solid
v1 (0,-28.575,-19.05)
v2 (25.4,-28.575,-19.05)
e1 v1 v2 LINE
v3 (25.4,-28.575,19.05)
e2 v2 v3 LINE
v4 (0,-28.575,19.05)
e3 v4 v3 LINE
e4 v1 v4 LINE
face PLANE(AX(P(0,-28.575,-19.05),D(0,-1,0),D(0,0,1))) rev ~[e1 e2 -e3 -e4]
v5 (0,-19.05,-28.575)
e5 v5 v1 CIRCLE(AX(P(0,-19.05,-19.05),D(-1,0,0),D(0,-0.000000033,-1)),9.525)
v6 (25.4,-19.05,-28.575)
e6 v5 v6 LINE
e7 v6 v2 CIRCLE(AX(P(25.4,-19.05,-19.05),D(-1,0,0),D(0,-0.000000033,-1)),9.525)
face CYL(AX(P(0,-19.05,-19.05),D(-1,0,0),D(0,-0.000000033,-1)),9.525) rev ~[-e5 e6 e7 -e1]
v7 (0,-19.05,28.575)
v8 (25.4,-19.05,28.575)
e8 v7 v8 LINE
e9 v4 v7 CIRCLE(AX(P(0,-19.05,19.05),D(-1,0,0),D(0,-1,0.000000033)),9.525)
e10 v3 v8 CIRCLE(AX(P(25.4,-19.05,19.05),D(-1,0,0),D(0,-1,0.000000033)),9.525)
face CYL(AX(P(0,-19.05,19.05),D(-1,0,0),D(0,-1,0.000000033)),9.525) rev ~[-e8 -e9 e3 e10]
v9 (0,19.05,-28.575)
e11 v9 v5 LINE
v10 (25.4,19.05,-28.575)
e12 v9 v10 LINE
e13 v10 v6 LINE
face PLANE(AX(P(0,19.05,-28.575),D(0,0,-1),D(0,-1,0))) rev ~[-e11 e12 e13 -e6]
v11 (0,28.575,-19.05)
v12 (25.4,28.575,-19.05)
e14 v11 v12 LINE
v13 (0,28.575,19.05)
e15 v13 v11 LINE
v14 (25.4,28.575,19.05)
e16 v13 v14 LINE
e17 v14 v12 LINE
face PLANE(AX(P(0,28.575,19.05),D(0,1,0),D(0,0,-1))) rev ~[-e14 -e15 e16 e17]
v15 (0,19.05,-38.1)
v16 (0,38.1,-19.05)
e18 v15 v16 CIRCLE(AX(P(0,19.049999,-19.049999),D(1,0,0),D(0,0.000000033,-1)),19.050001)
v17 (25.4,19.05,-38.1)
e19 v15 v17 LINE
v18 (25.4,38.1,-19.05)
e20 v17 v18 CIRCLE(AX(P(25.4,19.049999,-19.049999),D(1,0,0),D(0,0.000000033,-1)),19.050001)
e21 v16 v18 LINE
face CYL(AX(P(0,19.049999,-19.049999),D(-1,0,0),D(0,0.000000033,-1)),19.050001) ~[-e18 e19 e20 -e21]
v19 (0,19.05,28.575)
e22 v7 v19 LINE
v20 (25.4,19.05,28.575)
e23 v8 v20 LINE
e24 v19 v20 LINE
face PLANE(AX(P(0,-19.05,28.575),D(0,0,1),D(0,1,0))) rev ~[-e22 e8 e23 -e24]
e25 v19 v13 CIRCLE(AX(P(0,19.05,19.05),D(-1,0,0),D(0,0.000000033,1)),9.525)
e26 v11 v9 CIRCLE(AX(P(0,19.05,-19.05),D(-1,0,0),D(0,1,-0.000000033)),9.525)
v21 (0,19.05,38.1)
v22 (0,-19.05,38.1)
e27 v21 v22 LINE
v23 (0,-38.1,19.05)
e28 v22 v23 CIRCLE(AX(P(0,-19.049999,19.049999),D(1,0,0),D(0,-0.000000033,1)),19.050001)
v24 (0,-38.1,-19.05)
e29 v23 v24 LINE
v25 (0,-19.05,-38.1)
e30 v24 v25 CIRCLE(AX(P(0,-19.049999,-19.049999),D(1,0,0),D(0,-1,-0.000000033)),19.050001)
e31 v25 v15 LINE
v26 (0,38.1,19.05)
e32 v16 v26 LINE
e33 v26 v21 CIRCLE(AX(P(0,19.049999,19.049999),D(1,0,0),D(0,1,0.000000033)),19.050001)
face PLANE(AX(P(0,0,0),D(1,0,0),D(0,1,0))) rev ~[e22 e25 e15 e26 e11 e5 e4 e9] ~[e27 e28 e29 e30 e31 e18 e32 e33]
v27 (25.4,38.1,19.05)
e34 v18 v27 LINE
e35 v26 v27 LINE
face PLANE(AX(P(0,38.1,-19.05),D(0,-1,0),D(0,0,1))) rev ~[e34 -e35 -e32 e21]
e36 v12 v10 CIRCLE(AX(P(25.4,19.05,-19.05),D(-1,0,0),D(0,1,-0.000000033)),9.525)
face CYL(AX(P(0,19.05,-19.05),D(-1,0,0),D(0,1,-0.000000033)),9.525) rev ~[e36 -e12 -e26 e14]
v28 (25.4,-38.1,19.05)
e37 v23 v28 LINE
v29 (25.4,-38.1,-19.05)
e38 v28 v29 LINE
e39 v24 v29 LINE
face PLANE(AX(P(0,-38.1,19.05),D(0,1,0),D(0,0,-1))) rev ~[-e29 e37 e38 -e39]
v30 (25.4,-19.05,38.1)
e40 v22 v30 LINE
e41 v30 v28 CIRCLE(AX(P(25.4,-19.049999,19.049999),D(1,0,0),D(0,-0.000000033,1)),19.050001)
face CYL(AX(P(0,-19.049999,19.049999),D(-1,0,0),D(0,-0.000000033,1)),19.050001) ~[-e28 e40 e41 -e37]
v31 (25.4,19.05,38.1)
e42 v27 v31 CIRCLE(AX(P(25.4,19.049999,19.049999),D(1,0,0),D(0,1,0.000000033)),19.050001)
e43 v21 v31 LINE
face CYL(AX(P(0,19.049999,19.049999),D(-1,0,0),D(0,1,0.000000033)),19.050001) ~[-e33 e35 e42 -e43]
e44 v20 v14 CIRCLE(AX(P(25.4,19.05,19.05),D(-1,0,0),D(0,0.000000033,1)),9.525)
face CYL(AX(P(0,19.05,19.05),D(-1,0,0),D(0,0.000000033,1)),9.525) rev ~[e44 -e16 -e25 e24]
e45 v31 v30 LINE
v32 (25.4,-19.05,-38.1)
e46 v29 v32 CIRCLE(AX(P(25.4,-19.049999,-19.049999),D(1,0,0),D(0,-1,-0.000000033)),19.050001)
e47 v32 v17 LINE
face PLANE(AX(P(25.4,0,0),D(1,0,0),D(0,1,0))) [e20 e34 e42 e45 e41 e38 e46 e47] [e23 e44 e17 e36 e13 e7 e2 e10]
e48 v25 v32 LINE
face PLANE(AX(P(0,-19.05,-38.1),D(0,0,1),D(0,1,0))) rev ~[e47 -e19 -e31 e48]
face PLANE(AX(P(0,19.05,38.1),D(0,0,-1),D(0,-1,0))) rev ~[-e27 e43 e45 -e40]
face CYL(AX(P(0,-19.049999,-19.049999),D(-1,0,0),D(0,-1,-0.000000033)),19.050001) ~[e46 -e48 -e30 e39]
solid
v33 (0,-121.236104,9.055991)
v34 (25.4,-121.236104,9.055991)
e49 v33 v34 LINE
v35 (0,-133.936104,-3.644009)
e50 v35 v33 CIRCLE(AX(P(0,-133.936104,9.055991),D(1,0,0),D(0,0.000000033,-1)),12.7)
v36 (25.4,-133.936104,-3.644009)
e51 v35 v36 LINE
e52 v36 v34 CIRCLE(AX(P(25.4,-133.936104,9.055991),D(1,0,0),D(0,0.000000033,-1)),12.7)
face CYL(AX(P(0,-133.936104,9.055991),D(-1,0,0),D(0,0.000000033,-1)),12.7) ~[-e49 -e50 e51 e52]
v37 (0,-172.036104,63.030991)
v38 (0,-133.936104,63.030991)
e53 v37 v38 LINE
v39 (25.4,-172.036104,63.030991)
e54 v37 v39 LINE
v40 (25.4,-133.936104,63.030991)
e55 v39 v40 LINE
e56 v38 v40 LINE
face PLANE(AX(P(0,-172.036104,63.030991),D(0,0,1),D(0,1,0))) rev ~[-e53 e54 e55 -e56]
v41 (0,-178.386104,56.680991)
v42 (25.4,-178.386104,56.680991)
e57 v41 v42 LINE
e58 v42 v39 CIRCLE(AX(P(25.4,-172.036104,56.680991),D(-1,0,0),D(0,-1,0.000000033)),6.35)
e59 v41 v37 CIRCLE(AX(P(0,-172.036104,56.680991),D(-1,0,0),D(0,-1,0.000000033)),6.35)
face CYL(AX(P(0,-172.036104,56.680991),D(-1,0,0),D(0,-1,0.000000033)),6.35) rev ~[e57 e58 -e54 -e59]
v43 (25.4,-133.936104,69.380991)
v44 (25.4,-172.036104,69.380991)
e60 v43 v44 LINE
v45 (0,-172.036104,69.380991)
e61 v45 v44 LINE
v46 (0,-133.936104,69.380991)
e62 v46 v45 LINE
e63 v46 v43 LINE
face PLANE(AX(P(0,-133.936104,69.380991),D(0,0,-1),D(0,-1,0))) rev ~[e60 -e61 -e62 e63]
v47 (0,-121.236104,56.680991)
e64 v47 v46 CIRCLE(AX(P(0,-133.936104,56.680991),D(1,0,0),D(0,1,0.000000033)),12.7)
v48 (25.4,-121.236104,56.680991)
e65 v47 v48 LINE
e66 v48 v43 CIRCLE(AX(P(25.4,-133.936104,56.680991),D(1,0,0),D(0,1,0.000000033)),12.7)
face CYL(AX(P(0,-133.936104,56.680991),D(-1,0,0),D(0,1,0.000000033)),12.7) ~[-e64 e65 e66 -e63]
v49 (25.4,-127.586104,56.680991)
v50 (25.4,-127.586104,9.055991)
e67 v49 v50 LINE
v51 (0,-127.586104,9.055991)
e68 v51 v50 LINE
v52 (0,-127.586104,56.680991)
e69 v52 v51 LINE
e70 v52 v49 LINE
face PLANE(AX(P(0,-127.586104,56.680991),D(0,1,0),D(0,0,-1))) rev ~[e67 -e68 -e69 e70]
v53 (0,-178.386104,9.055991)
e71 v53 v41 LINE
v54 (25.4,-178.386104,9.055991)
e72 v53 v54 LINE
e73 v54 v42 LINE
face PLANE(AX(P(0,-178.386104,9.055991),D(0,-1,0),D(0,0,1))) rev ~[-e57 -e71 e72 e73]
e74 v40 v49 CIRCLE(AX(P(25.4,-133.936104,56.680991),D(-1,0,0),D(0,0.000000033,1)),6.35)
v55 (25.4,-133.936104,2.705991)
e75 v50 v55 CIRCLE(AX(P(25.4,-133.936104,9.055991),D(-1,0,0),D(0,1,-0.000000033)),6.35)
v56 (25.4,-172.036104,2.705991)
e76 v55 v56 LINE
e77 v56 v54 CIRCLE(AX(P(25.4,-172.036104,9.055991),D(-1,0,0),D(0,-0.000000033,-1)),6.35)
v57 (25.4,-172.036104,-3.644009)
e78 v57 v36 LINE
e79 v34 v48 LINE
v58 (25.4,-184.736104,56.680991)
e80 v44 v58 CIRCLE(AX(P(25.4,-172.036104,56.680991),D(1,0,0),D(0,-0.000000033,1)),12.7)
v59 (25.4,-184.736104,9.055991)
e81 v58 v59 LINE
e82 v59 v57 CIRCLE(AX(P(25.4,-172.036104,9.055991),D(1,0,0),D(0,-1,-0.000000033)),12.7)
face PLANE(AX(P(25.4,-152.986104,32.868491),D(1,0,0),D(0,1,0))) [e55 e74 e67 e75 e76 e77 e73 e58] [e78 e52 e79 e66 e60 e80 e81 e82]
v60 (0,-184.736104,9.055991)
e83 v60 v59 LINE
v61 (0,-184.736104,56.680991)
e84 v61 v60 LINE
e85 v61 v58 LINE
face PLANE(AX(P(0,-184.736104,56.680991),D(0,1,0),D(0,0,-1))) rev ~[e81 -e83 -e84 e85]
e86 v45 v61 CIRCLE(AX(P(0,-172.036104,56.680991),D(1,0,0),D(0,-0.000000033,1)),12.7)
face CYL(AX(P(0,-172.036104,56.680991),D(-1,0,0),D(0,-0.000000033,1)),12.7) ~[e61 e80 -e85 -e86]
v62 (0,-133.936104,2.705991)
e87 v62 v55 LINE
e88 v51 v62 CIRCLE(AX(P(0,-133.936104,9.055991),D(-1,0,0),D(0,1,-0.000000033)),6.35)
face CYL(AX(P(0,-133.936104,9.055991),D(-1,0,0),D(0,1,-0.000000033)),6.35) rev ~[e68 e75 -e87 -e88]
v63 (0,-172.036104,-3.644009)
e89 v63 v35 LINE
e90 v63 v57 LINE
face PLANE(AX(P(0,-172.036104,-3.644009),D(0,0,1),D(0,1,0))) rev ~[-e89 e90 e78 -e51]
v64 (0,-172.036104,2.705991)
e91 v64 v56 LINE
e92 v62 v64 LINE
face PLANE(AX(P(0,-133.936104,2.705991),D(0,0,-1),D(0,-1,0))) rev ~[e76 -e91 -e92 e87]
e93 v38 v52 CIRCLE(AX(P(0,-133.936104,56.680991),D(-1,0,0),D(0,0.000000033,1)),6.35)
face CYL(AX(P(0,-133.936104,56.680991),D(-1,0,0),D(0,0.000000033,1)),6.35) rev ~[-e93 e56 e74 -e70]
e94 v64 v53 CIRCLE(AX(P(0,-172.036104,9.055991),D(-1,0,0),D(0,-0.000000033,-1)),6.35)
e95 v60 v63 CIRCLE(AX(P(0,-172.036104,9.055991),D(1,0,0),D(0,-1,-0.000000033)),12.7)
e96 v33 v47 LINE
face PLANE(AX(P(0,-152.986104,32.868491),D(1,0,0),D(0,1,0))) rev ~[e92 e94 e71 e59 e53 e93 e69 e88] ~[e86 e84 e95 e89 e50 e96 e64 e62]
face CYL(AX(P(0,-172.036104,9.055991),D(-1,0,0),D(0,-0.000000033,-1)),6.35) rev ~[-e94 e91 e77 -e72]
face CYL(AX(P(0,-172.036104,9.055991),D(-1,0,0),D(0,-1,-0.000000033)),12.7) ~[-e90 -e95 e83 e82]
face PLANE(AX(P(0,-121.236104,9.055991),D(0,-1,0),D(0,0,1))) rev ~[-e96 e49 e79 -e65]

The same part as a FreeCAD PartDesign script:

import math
import FreeCAD as App
import Part
import Sketcher
from FreeCAD import Vector
Q = App.Units.Quantity

doc = App.newDocument("Part")
body = doc.addObject("PartDesign::Body", "Body")

sketch1 = doc.addObject("Sketcher::SketchObject", "Sketch")
body.addObject(sketch1)
sketch1.AttachmentSupport = (doc.YZ_Plane, [""])
sketch1.MapMode = "FlatFace"
sketch1.addGeometry([
    Part.LineSegment(Vector(19.05, 38.1, 0), Vector(-19.05, 38.1, 0)),
    Part.ArcOfCircle(Part.Circle(Vector(-19.049999, 19.049999, 0), Vector(0, 0, 1), 19.050001), math.radians(90.000002), math.radians(179.999998)),
    Part.LineSegment(Vector(-38.1, 19.05, 0), Vector(-38.1, -19.05, 0)),
    Part.ArcOfCircle(Part.Circle(Vector(-19.049999, -19.049999, 0), Vector(0, 0, 1), 19.050001), math.radians(-179.999998), math.radians(-90.000002)),
    Part.LineSegment(Vector(-19.05, -38.1, 0), Vector(19.05, -38.1, 0)),
    Part.ArcOfCircle(Part.Circle(Vector(19.049999, -19.049999, 0), Vector(0, 0, 1), 19.050001), math.radians(-89.999998), math.radians(-0.000002)),
    Part.LineSegment(Vector(38.1, -19.05, 0), Vector(38.1, 19.05, 0)),
    Part.ArcOfCircle(Part.Circle(Vector(19.049999, 19.049999, 0), Vector(0, 0, 1), 19.050001), math.radians(0.000002), math.radians(89.999998)),
    Part.LineSegment(Vector(-28.575, -19.05, 0), Vector(-28.575, 19.05, 0)),
    Part.ArcOfCircle(Part.Circle(Vector(-19.05, 19.05, 0), Vector(0, 0, 1), 9.525), math.radians(90.000002), math.radians(179.999998)),
    Part.LineSegment(Vector(-19.05, 28.575, 0), Vector(19.05, 28.575, 0)),
    Part.ArcOfCircle(Part.Circle(Vector(19.05, 19.05, 0), Vector(0, 0, 1), 9.525), math.radians(0.000002), math.radians(89.999998)),
    Part.LineSegment(Vector(28.575, 19.05, 0), Vector(28.575, -19.05, 0)),
    Part.ArcOfCircle(Part.Circle(Vector(19.05, -19.05, 0), Vector(0, 0, 1), 9.525), math.radians(-89.999998), math.radians(-0.000002)),
    Part.LineSegment(Vector(19.05, -28.575, 0), Vector(-19.05, -28.575, 0)),
    Part.ArcOfCircle(Part.Circle(Vector(-19.05, -19.05, 0), Vector(0, 0, 1), 9.525), math.radians(-179.999998), math.radians(-90.000002)),
], False)
sketch1.addConstraint([
    Sketcher.Constraint("Tangent", 0, 2, 1, 1),
    Sketcher.Constraint("Tangent", 1, 2, 2, 1),
    Sketcher.Constraint("Tangent", 2, 2, 3, 1),
    Sketcher.Constraint("Tangent", 3, 2, 4, 1),
    Sketcher.Constraint("Tangent", 4, 2, 5, 1),
    Sketcher.Constraint("Tangent", 5, 2, 6, 1),
    Sketcher.Constraint("Tangent", 6, 2, 7, 1),
    Sketcher.Constraint("Tangent", 7, 2, 0, 1),
    Sketcher.Constraint("Tangent", 8, 2, 9, 2),
    Sketcher.Constraint("Tangent", 9, 1, 10, 1),
    Sketcher.Constraint("Tangent", 10, 2, 11, 2),
    Sketcher.Constraint("Tangent", 11, 1, 12, 1),
    Sketcher.Constraint("Tangent", 12, 2, 13, 2),
    Sketcher.Constraint("Tangent", 13, 1, 14, 1),
    Sketcher.Constraint("Tangent", 14, 2, 15, 2),
    Sketcher.Constraint("Tangent", 15, 1, 8, 1),
    Sketcher.Constraint("Horizontal", 0),
    Sketcher.Constraint("Vertical", 2),
    Sketcher.Constraint("Horizontal", 4),
    Sketcher.Constraint("Vertical", 6),
    Sketcher.Constraint("Vertical", 8),
    Sketcher.Constraint("Horizontal", 10),
    Sketcher.Constraint("Vertical", 12),
    Sketcher.Constraint("Horizontal", 14),
    Sketcher.Constraint("Coincident", 9, 3, 1, 3),
    Sketcher.Constraint("Coincident", 11, 3, 7, 3),
    Sketcher.Constraint("Coincident", 13, 3, 5, 3),
    Sketcher.Constraint("Equal", 1, 3),
    Sketcher.Constraint("Equal", 3, 5),
    Sketcher.Constraint("Equal", 5, 7),
    Sketcher.Constraint("Equal", 13, 15),
    Sketcher.Constraint("Symmetric", 1, 3, 5, 3, -1, 1),
    Sketcher.Constraint("Equal", 14, 2),
    Sketcher.Constraint("Radius", 1, Q("0.75 in")),
    Sketcher.Constraint("DistanceX", 0, 2, 0, 1, Q("1.5 in")),
    Sketcher.Constraint("Radius", 9, Q("0.375 in")),
])
pad1 = doc.addObject("PartDesign::Pad", "Pad")
body.addObject(pad1)
pad1.Profile = sketch1
pad1.Length = Q("1 in")
body2 = doc.addObject("PartDesign::Body", "Body001")

sketch2 = doc.addObject("Sketcher::SketchObject", "Sketch001")
body2.addObject(sketch2)
sketch2.AttachmentSupport = (doc.getObject("YZ_Plane001"), [""])
sketch2.MapMode = "FlatFace"
sketch2.addGeometry([
    Part.LineSegment(Vector(-133.936104, 69.380991, 0), Vector(-172.036104, 69.380991, 0)),
    Part.ArcOfCircle(Part.Circle(Vector(-172.036104, 56.680991, 0), Vector(0, 0, 1), 12.7), math.radians(90.000002), math.radians(179.999998)),
    Part.LineSegment(Vector(-184.736104, 56.680991, 0), Vector(-184.736104, 9.055991, 0)),
    Part.ArcOfCircle(Part.Circle(Vector(-172.036104, 9.055991, 0), Vector(0, 0, 1), 12.7), math.radians(-179.999998), math.radians(-90.000002)),
    Part.LineSegment(Vector(-172.036104, -3.644009, 0), Vector(-133.936104, -3.644009, 0)),
    Part.ArcOfCircle(Part.Circle(Vector(-133.936104, 9.055991, 0), Vector(0, 0, 1), 12.7), math.radians(-89.999998), math.radians(-0.000002)),
    Part.LineSegment(Vector(-121.236104, 9.055991, 0), Vector(-121.236104, 56.680991, 0)),
    Part.ArcOfCircle(Part.Circle(Vector(-133.936104, 56.680991, 0), Vector(0, 0, 1), 12.7), math.radians(0.000002), math.radians(89.999998)),
    Part.LineSegment(Vector(-178.386104, 9.055991, 0), Vector(-178.386104, 56.680991, 0)),
    Part.ArcOfCircle(Part.Circle(Vector(-172.036104, 56.680991, 0), Vector(0, 0, 1), 6.35), math.radians(90.000002), math.radians(179.999998)),
    Part.LineSegment(Vector(-172.036104, 63.030991, 0), Vector(-133.936104, 63.030991, 0)),
    Part.ArcOfCircle(Part.Circle(Vector(-133.936104, 56.680991, 0), Vector(0, 0, 1), 6.35), math.radians(0.000002), math.radians(89.999998)),
    Part.LineSegment(Vector(-127.586104, 56.680991, 0), Vector(-127.586104, 9.055991, 0)),
    Part.ArcOfCircle(Part.Circle(Vector(-133.936104, 9.055991, 0), Vector(0, 0, 1), 6.35), math.radians(-89.999998), math.radians(-0.000002)),
    Part.LineSegment(Vector(-133.936104, 2.705991, 0), Vector(-172.036104, 2.705991, 0)),
    Part.ArcOfCircle(Part.Circle(Vector(-172.036104, 9.055991, 0), Vector(0, 0, 1), 6.35), math.radians(-179.999998), math.radians(-90.000002)),
], False)
sketch2.addConstraint([
    Sketcher.Constraint("Tangent", 0, 2, 1, 1),
    Sketcher.Constraint("Tangent", 1, 2, 2, 1),
    Sketcher.Constraint("Tangent", 2, 2, 3, 1),
    Sketcher.Constraint("Tangent", 3, 2, 4, 1),
    Sketcher.Constraint("Tangent", 4, 2, 5, 1),
    Sketcher.Constraint("Tangent", 5, 2, 6, 1),
    Sketcher.Constraint("Tangent", 6, 2, 7, 1),
    Sketcher.Constraint("Tangent", 7, 2, 0, 1),
    Sketcher.Constraint("Tangent", 8, 2, 9, 2),
    Sketcher.Constraint("Tangent", 9, 1, 10, 1),
    Sketcher.Constraint("Tangent", 10, 2, 11, 2),
    Sketcher.Constraint("Tangent", 11, 1, 12, 1),
    Sketcher.Constraint("Tangent", 12, 2, 13, 2),
    Sketcher.Constraint("Tangent", 13, 1, 14, 1),
    Sketcher.Constraint("Tangent", 14, 2, 15, 2),
    Sketcher.Constraint("Tangent", 15, 1, 8, 1),
    Sketcher.Constraint("Horizontal", 0),
    Sketcher.Constraint("Vertical", 2),
    Sketcher.Constraint("Horizontal", 4),
    Sketcher.Constraint("Vertical", 6),
    Sketcher.Constraint("Vertical", 8),
    Sketcher.Constraint("Horizontal", 10),
    Sketcher.Constraint("Vertical", 12),
    Sketcher.Constraint("Horizontal", 14),
    Sketcher.Constraint("Coincident", 9, 3, 1, 3),
    Sketcher.Constraint("Coincident", 11, 3, 7, 3),
    Sketcher.Constraint("Coincident", 13, 3, 5, 3),
    Sketcher.Constraint("Equal", 1, 3),
    Sketcher.Constraint("Equal", 3, 5),
    Sketcher.Constraint("Equal", 5, 7),
    Sketcher.Constraint("Equal", 13, 15),
    Sketcher.Constraint("Radius", 1, Q("0.5 in")),
    Sketcher.Constraint("Radius", 9, Q("0.25 in")),
    Sketcher.Constraint("DistanceX", 0, 2, 0, 1, Q("1.5 in")),
    Sketcher.Constraint("DistanceY", 2, 2, 2, 1, Q("1.875 in")),
    Sketcher.Constraint("DistanceY", -1, 1, 1, 3, 56.680991),
    Sketcher.Constraint("DistanceX", 1, 3, -1, 1, 172.036104),
])
pad2 = doc.addObject("PartDesign::Pad", "Pad001")
body2.addObject(pad2)
pad2.Profile = sketch2
pad2.Length = Q("1 in")

doc.recompute()
